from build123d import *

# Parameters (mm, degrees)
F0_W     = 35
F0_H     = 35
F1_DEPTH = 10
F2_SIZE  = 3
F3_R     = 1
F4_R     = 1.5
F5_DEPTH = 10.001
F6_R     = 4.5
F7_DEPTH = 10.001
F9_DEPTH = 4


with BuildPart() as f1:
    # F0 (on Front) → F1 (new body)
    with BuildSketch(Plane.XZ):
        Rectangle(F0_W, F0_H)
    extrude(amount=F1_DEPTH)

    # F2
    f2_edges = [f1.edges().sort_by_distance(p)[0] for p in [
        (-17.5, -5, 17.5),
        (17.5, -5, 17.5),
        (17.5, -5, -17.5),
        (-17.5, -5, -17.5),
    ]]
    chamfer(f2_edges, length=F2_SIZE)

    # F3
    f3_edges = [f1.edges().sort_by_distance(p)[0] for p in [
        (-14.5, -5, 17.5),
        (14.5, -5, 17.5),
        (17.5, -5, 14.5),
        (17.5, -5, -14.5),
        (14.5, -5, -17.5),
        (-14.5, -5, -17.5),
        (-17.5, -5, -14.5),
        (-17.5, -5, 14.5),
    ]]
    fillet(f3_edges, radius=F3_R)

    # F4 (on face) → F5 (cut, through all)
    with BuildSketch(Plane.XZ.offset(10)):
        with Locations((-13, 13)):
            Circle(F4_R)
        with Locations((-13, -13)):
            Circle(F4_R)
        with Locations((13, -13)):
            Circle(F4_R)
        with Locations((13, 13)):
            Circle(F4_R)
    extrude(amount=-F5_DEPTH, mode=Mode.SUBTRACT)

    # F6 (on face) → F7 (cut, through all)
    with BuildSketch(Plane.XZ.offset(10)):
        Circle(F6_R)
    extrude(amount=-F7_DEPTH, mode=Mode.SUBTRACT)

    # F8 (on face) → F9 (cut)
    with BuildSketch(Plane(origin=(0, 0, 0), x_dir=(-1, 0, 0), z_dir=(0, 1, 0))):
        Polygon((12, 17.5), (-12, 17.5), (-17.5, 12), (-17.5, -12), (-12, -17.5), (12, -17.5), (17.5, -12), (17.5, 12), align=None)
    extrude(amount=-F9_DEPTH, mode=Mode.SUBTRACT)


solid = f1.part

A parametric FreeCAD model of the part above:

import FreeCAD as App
import Part
import Sketcher
from FreeCAD import Vector
Q = App.Units.Quantity


def edges_at(feature, points):
    """Names of the edges that pass closest to the given points."""
    edges = feature.Shape.Edges
    near = lambda p: min(range(len(edges)), key=lambda i: edges[i].distToShape(Part.Vertex(*p))[0])
    return sorted({f"Edge{near(p) + 1}" for p in points})

doc = App.newDocument("Part")
params = doc.addObject("Spreadsheet::Sheet", "Params")
for row, (alias, value) in enumerate([
    ("sketch1_width", "35 mm"),
    ("pad1_length", "10 mm"),
    ("chamfer_size", "3 mm"),
    ("fillet_radius", "1 mm"),
    ("sketch2_diameter", "3 mm"),
    ("sketch3_diameter", "9 mm"),
    ("sketch4_width", "24 mm"),
    ("pocket3_length", "4 mm"),
], start=1):
    params.set(f"A{row}", alias)
    params.set(f"B{row}", "=" + value)
    params.setAlias(f"B{row}", alias)

body = doc.addObject("PartDesign::Body", "Body")

# Sketch on XZ plane
sketch1 = body.newObject("Sketcher::SketchObject", "Sketch")
sketch1.AttachmentSupport = (doc.getObject("XZ_Plane"), [""])
sketch1.MapMode = "FlatFace"
sketch1.addGeometry(Part.LineSegment(Vector(-18, 18, 0), Vector(-18, -18, 0)), False)
sketch1.addGeometry(Part.LineSegment(Vector(-18, -18, 0), Vector(18, -18, 0)), False)
sketch1.addGeometry(Part.LineSegment(Vector(18, -18, 0), Vector(18, 18, 0)), False)
sketch1.addGeometry(Part.LineSegment(Vector(18, 18, 0), Vector(-18, 18, 0)), False)
sketch1.addConstraint(Sketcher.Constraint("Coincident", 0, 2, 1, 1))
sketch1.addConstraint(Sketcher.Constraint("Coincident", 1, 2, 2, 1))
sketch1.addConstraint(Sketcher.Constraint("Coincident", 2, 2, 3, 1))
sketch1.addConstraint(Sketcher.Constraint("Coincident", 3, 2, 0, 1))
sketch1.addConstraint(Sketcher.Constraint("Vertical", 0))
sketch1.addConstraint(Sketcher.Constraint("Horizontal", 1))
sketch1.addConstraint(Sketcher.Constraint("Vertical", 2))
sketch1.addConstraint(Sketcher.Constraint("Horizontal", 3))
sketch1.addConstraint(Sketcher.Constraint("Symmetric", 0, 2, 2, 2, -1, 1))
sketch1.addConstraint(Sketcher.Constraint("Equal", 3, 0))
sketch1.addConstraint(Sketcher.Constraint("DistanceX", 1, 1, 1, 2, Q("35 mm")))
sketch1.setExpression("Constraints[10]", "Params.sketch1_width")
pad1 = body.newObject("PartDesign::Pad", "Pad")
pad1.Profile = sketch1
pad1.setExpression("Length", "Params.pad1_length")
doc.recompute()

chamfer = body.newObject("PartDesign::Chamfer", "Chamfer")
chamfer.Base = (pad1, edges_at(pad1, [
    (-17.5, -5, 17.5),
    (17.5, -5, 17.5),
    (17.5, -5, -17.5),
    (-17.5, -5, -17.5),
]))
chamfer.setExpression("Size", "Params.chamfer_size")
doc.recompute()

fillet = body.newObject("PartDesign::Fillet", "Fillet")
fillet.Base = (chamfer, edges_at(chamfer, [
    (-14.5, -5, 17.5),
    (14.5, -5, 17.5),
    (17.5, -5, 14.5),
    (17.5, -5, -14.5),
    (14.5, -5, -17.5),
    (-14.5, -5, -17.5),
    (-17.5, -5, -14.5),
    (-17.5, -5, 14.5),
]))
fillet.setExpression("Radius", "Params.fillet_radius")

# Sketch on XZ plane
sketch2 = body.newObject("Sketcher::SketchObject", "Sketch001")
sketch2.AttachmentSupport = (doc.getObject("XZ_Plane"), [""])
sketch2.MapMode = "FlatFace"
sketch2.AttachmentOffset = App.Placement(Vector(0, 0, 10), App.Rotation())
sketch2.addGeometry(Part.Circle(Vector(-13, 13, 0), Vector(0, 0, 1), 1.5), False)
sketch2.addGeometry(Part.Circle(Vector(-13, -13, 0), Vector(0, 0, 1), 1.5), False)
sketch2.addGeometry(Part.Circle(Vector(13, -13, 0), Vector(0, 0, 1), 1.5), False)
sketch2.addGeometry(Part.Circle(Vector(13, 13, 0), Vector(0, 0, 1), 1.5), False)
sketch2.addConstraint(Sketcher.Constraint("Equal", 0, 1))
sketch2.addConstraint(Sketcher.Constraint("Equal", 1, 2))
sketch2.addConstraint(Sketcher.Constraint("Equal", 2, 3))
sketch2.addConstraint(Sketcher.Constraint("Symmetric", 0, 3, 2, 3, -1, 1))
sketch2.addConstraint(Sketcher.Constraint("Symmetric", 1, 3, 3, 3, -1, 1))
sketch2.addConstraint(Sketcher.Constraint("Symmetric", 1, 3, 2, 3, -2))
sketch2.addConstraint(Sketcher.Constraint("Diameter", 0, Q("3 mm")))
sketch2.addConstraint(Sketcher.Constraint("DistanceX", 0, 3, -1, 1, Q("13 mm")))
sketch2.addConstraint(Sketcher.Constraint("DistanceY", -1, 1, 0, 3, Q("13 mm")))
sketch2.setExpression("Constraints[6]", "Params.sketch2_diameter")
pocket1 = body.newObject("PartDesign::Pocket", "Pocket")
pocket1.Profile = sketch2
pocket1.Type = "ThroughAll"

# Sketch on XZ plane
sketch3 = body.newObject("Sketcher::SketchObject", "Sketch002")
sketch3.AttachmentSupport = (doc.getObject("XZ_Plane"), [""])
sketch3.MapMode = "FlatFace"
sketch3.AttachmentOffset = App.Placement(Vector(0, 0, 10), App.Rotation())
sketch3.addGeometry(Part.Circle(Vector(0, 0, 0), Vector(0, 0, 1), 4.5), False)
sketch3.addConstraint(Sketcher.Constraint("Coincident", 0, 3, -1, 1))
sketch3.addConstraint(Sketcher.Constraint("Diameter", 0, Q("9 mm")))
sketch3.setExpression("Constraints[1]", "Params.sketch3_diameter")
pocket2 = body.newObject("PartDesign::Pocket", "Pocket001")
pocket2.Profile = sketch3
pocket2.Type = "ThroughAll"

# Sketch on XZ plane
sketch4 = body.newObject("Sketcher::SketchObject", "Sketch003")
sketch4.AttachmentSupport = (doc.getObject("XZ_Plane"), [""])
sketch4.MapMode = "FlatFace"
sketch4.addGeometry(Part.LineSegment(Vector(-12, 18, 0), Vector(12, 18, 0)), False)
sketch4.addGeometry(Part.LineSegment(Vector(12, 18, 0), Vector(18, 12, 0)), False)
sketch4.addGeometry(Part.LineSegment(Vector(18, 12, 0), Vector(18, -12, 0)), False)
sketch4.addGeometry(Part.LineSegment(Vector(18, -12, 0), Vector(12, -18, 0)), False)
sketch4.addGeometry(Part.LineSegment(Vector(12, -18, 0), Vector(-12, -18, 0)), False)
sketch4.addGeometry(Part.LineSegment(Vector(-12, -18, 0), Vector(-18, -12, 0)), False)
sketch4.addGeometry(Part.LineSegment(Vector(-18, -12, 0), Vector(-18, 12, 0)), False)
sketch4.addGeometry(Part.LineSegment(Vector(-18, 12, 0), Vector(-12, 18, 0)), False)
sketch4.addConstraint(Sketcher.Constraint("Coincident", 0, 2, 1, 1))
sketch4.addConstraint(Sketcher.Constraint("Coincident", 1, 2, 2, 1))
sketch4.addConstraint(Sketcher.Constraint("Coincident", 2, 2, 3, 1))
sketch4.addConstraint(Sketcher.Constraint("Coincident", 3, 2, 4, 1))
sketch4.addConstraint(Sketcher.Constraint("Coincident", 4, 2, 5, 1))
sketch4.addConstraint(Sketcher.Constraint("Coincident", 5, 2, 6, 1))
sketch4.addConstraint(Sketcher.Constraint("Coincident", 6, 2, 7, 1))
sketch4.addConstraint(Sketcher.Constraint("Coincident", 7, 2, 0, 1))
sketch4.addConstraint(Sketcher.Constraint("Horizontal", 0))
sketch4.addConstraint(Sketcher.Constraint("Vertical", 2))
sketch4.addConstraint(Sketcher.Constraint("Horizontal", 4))
sketch4.addConstraint(Sketcher.Constraint("Vertical", 6))
sketch4.addConstraint(Sketcher.Constraint("Symmetric", 0, 2, 4, 2, -1, 1))
sketch4.addConstraint(Sketcher.Constraint("Symmetric", 1, 2, 5, 2, -1, 1))
sketch4.addConstraint(Sketcher.Constraint("Perpendicular", 1, 3))
sketch4.addConstraint(Sketcher.Constraint("Perpendicular", 5, 7))
sketch4.addConstraint(Sketcher.Constraint("Horizontal", 2, 2, 5, 2))
sketch4.addConstraint(Sketcher.Constraint("Horizontal", 1, 2, 6, 2))
sketch4.addConstraint(Sketcher.Constraint("Vertical", 0, 2, 3, 2))
sketch4.addConstraint(Sketcher.Constraint("Equal", 4, 2))
sketch4.addConstraint(Sketcher.Constraint("DistanceX", 0, 1, 0, 2, Q("24 mm")))
sketch4.addConstraint(Sketcher.Constraint("DistanceY", 3, 2, 0, 2, Q("35 mm")))
sketch4.setExpression("Constraints[20]", "Params.sketch4_width")
pocket3 = body.newObject("PartDesign::Pocket", "Pocket002")
pocket3.Profile = sketch4
pocket3.setExpression("Length", "Params.pocket3_length")
pocket3.Reversed = True

doc.recompute()
